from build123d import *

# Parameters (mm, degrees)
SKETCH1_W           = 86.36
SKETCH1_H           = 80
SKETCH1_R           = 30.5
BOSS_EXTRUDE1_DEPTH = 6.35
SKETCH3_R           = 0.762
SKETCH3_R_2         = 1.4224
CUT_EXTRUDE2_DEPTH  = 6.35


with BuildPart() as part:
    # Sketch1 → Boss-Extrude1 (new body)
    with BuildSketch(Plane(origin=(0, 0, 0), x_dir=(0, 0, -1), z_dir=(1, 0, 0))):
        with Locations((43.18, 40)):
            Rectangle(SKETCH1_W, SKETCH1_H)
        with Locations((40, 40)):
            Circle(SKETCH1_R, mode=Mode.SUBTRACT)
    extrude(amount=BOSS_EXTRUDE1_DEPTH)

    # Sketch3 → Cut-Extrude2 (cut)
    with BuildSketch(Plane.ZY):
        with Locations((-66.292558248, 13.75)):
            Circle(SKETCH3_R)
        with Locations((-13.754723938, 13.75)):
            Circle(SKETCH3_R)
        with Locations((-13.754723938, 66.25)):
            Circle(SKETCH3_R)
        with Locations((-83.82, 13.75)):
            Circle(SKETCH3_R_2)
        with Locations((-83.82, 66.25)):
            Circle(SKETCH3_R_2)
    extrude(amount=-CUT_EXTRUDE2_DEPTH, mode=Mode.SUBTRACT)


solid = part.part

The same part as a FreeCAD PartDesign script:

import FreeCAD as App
import Part
import Sketcher
Q = App.Units.Quantity


def add_polygon(sketch, points):
    """Adds a closed chain of lines whose ends are joined by coincident constraints."""
    first, n = sketch.GeometryCount, len(points)
    for a, b in zip(points, points[1:] + points[:1]):
        sketch.addGeometry(Part.LineSegment(App.Vector(*a, 0), App.Vector(*b, 0)), False)
    for i in range(n):
        sketch.addConstraint(Sketcher.Constraint("Coincident", first + i, 2, first + (i + 1) % n, 1))

doc = App.newDocument("Part")
params = doc.addObject("Spreadsheet::Sheet", "Params")
for row, (alias, value) in enumerate([
    ("sketch1_height", "3.4 in"),
    ("pad1_length", "0.25 in"),
    ("sketch2_diameter", "0.06 in"),
    ("sketch2_diameter2", "0.112 in"),
    ("pocket1_length", "0.25 in"),
], start=1):
    params.set(f"A{row}", alias)
    params.set(f"B{row}", "=" + value)
    params.setAlias(f"B{row}", alias)

body = doc.addObject("PartDesign::Body", "Body")

sketch1 = body.newObject("Sketcher::SketchObject", "Sketch")
sketch1.AttachmentSupport = (doc.getObject("YZ_Plane"), [""])
sketch1.MapMode = "FlatFace"
add_polygon(sketch1, [(80, 0), (0, 0), (0, -86), (80, -86)])
sketch1.addGeometry(Part.Circle(App.Vector(40, -40, 0), App.Vector(0, 0, 1), 30), False)
sketch1.addConstraint([
    Sketcher.Constraint("Horizontal", 0),
    Sketcher.Constraint("Vertical", 1),
    Sketcher.Constraint("Horizontal", 2),
    Sketcher.Constraint("Vertical", 3),
    Sketcher.Constraint("Coincident", 0, 2, -1, 1),
    Sketcher.Constraint("DistanceY", 1, 2, 1, 1, Q("3.4 in")),
    Sketcher.Constraint("Diameter", 4, 61.0),
    Sketcher.Constraint("DistanceX", 0, 2, 0, 1, 80.0),
    Sketcher.Constraint("DistanceX", -1, 1, 4, 3, 40.0),
    Sketcher.Constraint("DistanceY", 4, 3, -1, 1, 40.0),
])
sketch1.setExpression("Constraints[9]", "Params.sketch1_height")
pad1 = body.newObject("PartDesign::Pad", "Pad")
pad1.Profile = sketch1
pad1.setExpression("Length", "Params.pad1_length")

sketch2 = body.newObject("Sketcher::SketchObject", "Sketch001")
sketch2.AttachmentSupport = (doc.getObject("YZ_Plane"), [""])
sketch2.MapMode = "FlatFace"
sketch2.addGeometry([
    Part.Circle(App.Vector(13.8, -66.3, 0), App.Vector(0, 0, 1), 0.8),
    Part.Circle(App.Vector(13.8, -13.8, 0), App.Vector(0, 0, 1), 0.8),
    Part.Circle(App.Vector(66.2, -13.8, 0), App.Vector(0, 0, 1), 0.8),
    Part.Circle(App.Vector(13.8, -83.8, 0), App.Vector(0, 0, 1), 1.4),
    Part.Circle(App.Vector(66.2, -83.8, 0), App.Vector(0, 0, 1), 1.4),
], False)
sketch2.addConstraint([
    Sketcher.Constraint("Equal", 0, 1),
    Sketcher.Constraint("Equal", 1, 2),
    Sketcher.Constraint("Equal", 3, 4),
    Sketcher.Constraint("Horizontal", 1, 3, 2, 3),
    Sketcher.Constraint("Horizontal", 3, 3, 4, 3),
    Sketcher.Constraint("Vertical", 0, 3, 1, 3),
    Sketcher.Constraint("Vertical", 1, 3, 3, 3),
    Sketcher.Constraint("Vertical", 2, 3, 4, 3),
    Sketcher.Constraint("Diameter", 0, Q("0.06 in")),
    Sketcher.Constraint("Diameter", 3, Q("0.112 in")),
    Sketcher.Constraint("DistanceY", 3, 3, -1, 1, Q("3.3 in")),
    Sketcher.Constraint("DistanceX", -1, 1, 0, 3, 13.75),
    Sketcher.Constraint("DistanceX", -1, 1, 2, 3, 66.25),
    Sketcher.Constraint("DistanceY", 0, 3, -1, 1, 66.292558),
    Sketcher.Constraint("DistanceY", 1, 3, -1, 1, 13.754724),
])
sketch2.setExpression("Constraints[8]", "Params.sketch2_diameter")
sketch2.setExpression("Constraints[9]", "Params.sketch2_diameter2")
pocket1 = body.newObject("PartDesign::Pocket", "Pocket")
pocket1.Profile = sketch2
pocket1.setExpression("Length", "Params.pocket1_length")
pocket1.Reversed = True

doc.recompute()
